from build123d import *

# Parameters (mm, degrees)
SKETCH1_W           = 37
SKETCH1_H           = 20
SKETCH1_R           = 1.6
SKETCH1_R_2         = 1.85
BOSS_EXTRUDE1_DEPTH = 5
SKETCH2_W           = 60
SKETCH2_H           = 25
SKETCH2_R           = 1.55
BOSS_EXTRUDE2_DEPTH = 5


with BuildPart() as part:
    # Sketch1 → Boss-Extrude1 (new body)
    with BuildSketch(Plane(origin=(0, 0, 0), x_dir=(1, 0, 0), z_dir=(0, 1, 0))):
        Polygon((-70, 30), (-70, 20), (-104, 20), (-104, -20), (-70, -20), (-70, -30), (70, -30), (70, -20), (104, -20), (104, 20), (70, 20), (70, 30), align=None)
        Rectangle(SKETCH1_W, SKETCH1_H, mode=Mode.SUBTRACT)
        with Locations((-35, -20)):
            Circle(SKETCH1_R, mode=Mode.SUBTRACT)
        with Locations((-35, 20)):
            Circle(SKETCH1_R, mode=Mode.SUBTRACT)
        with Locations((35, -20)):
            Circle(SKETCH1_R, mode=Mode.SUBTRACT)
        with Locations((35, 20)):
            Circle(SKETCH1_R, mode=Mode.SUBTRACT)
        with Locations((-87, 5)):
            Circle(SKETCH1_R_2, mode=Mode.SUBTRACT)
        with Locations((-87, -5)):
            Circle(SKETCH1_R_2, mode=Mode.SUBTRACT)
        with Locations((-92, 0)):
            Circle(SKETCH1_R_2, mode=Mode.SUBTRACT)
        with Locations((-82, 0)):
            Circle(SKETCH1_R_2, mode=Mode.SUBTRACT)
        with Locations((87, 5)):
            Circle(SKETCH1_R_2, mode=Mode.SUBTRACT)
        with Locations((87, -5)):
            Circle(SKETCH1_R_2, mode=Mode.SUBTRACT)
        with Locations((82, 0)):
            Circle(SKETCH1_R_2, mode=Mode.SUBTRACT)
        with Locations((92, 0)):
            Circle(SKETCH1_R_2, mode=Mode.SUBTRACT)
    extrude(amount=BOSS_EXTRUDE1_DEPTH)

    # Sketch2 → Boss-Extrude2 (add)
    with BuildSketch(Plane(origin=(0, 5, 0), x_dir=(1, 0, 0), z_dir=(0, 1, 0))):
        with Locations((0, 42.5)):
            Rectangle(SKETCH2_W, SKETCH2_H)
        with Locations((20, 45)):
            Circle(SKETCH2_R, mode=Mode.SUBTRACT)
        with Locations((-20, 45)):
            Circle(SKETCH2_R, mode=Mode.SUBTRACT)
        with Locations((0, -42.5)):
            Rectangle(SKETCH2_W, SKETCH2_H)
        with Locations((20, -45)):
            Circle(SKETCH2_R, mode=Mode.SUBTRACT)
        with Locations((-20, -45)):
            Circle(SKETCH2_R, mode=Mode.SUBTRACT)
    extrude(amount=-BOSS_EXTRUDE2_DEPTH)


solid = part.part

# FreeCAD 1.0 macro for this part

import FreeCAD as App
import Part
import Sketcher

V = App.Vector
Q = App.Units.Quantity

doc = App.newDocument("Part")
body = doc.addObject("PartDesign::Body", "Body")

# Sketch on XZ plane
sketch1 = body.newObject("Sketcher::SketchObject", "Sketch")
sketch1.AttachmentSupport = (doc.getObject("XZ_Plane"), [""])
sketch1.MapMode = "FlatFace"
sketch1.addGeometry(Part.LineSegment(V(-70, -30, 0), V(-70, -20, 0)), False)
sketch1.addGeometry(Part.LineSegment(V(-70, -20, 0), V(-104, -20, 0)), False)
sketch1.addGeometry(Part.LineSegment(V(-104, -20, 0), V(-104, 20, 0)), False)
sketch1.addGeometry(Part.LineSegment(V(-104, 20, 0), V(-70, 20, 0)), False)
sketch1.addGeometry(Part.LineSegment(V(-70, 20, 0), V(-70, 30, 0)), False)
sketch1.addGeometry(Part.LineSegment(V(-70, 30, 0), V(70, 30, 0)), False)
sketch1.addGeometry(Part.LineSegment(V(70, 30, 0), V(70, 20, 0)), False)
sketch1.addGeometry(Part.LineSegment(V(70, 20, 0), V(104, 20, 0)), False)
sketch1.addGeometry(Part.LineSegment(V(104, 20, 0), V(104, -20, 0)), False)
sketch1.addGeometry(Part.LineSegment(V(104, -20, 0), V(70, -20, 0)), False)
sketch1.addGeometry(Part.LineSegment(V(70, -20, 0), V(70, -30, 0)), False)
sketch1.addGeometry(Part.LineSegment(V(70, -30, 0), V(-70, -30, 0)), False)
sketch1.addGeometry(Part.Circle(V(-35, 20, 0), V(0, 0, 1), 1.6), False)
sketch1.addGeometry(Part.Circle(V(-87, 5, 0), V(0, 0, 1), 1.9), False)
sketch1.addGeometry(Part.Circle(V(35, 20, 0), V(0, 0, 1), 1.6), False)
sketch1.addGeometry(Part.Circle(V(87, 5, 0), V(0, 0, 1), 1.9), False)
sketch1.addGeometry(Part.Circle(V(-92, 0, 0), V(0, 0, 1), 1.9), False)
sketch1.addGeometry(Part.Circle(V(-82, 0, 0), V(0, 0, 1), 1.9), False)
sketch1.addGeometry(Part.Circle(V(-87, -5, 0), V(0, 0, 1), 1.9), False)
sketch1.addGeometry(Part.Circle(V(-35, -20, 0), V(0, 0, 1), 1.6), False)
sketch1.addGeometry(Part.LineSegment(V(18.5, 10, 0), V(-18.5, 10, 0)), False)
sketch1.addGeometry(Part.LineSegment(V(-18.5, 10, 0), V(-18.5, -10, 0)), False)
sketch1.addGeometry(Part.LineSegment(V(-18.5, -10, 0), V(18.5, -10, 0)), False)
sketch1.addGeometry(Part.LineSegment(V(18.5, -10, 0), V(18.5, 10, 0)), False)
sketch1.addGeometry(Part.Circle(V(82, 0, 0), V(0, 0, 1), 1.9), False)
sketch1.addGeometry(Part.Circle(V(92, 0, 0), V(0, 0, 1), 1.9), False)
sketch1.addGeometry(Part.Circle(V(87, -5, 0), V(0, 0, 1), 1.9), False)
sketch1.addGeometry(Part.Circle(V(35, -20, 0), V(0, 0, 1), 1.6), False)
sketch1.addConstraint(Sketcher.Constraint("Coincident", 0, 2, 1, 1))
sketch1.addConstraint(Sketcher.Constraint("Coincident", 1, 2, 2, 1))
sketch1.addConstraint(Sketcher.Constraint("Coincident", 2, 2, 3, 1))
sketch1.addConstraint(Sketcher.Constraint("Coincident", 3, 2, 4, 1))
sketch1.addConstraint(Sketcher.Constraint("Coincident", 4, 2, 5, 1))
sketch1.addConstraint(Sketcher.Constraint("Coincident", 5, 2, 6, 1))
sketch1.addConstraint(Sketcher.Constraint("Coincident", 6, 2, 7, 1))
sketch1.addConstraint(Sketcher.Constraint("Coincident", 7, 2, 8, 1))
sketch1.addConstraint(Sketcher.Constraint("Coincident", 8, 2, 9, 1))
sketch1.addConstraint(Sketcher.Constraint("Coincident", 9, 2, 10, 1))
sketch1.addConstraint(Sketcher.Constraint("Coincident", 10, 2, 11, 1))
sketch1.addConstraint(Sketcher.Constraint("Coincident", 11, 2, 0, 1))
sketch1.addConstraint(Sketcher.Constraint("Coincident", 20, 2, 21, 1))
sketch1.addConstraint(Sketcher.Constraint("Coincident", 21, 2, 22, 1))
sketch1.addConstraint(Sketcher.Constraint("Coincident", 22, 2, 23, 1))
sketch1.addConstraint(Sketcher.Constraint("Coincident", 23, 2, 20, 1))
sketch1.addConstraint(Sketcher.Constraint("Vertical", 0))
sketch1.addConstraint(Sketcher.Constraint("Horizontal", 1))
sketch1.addConstraint(Sketcher.Constraint("Vertical", 2))
sketch1.addConstraint(Sketcher.Constraint("Horizontal", 3))
sketch1.addConstraint(Sketcher.Constraint("Vertical", 4))
sketch1.addConstraint(Sketcher.Constraint("Horizontal", 5))
sketch1.addConstraint(Sketcher.Constraint("Vertical", 6))
sketch1.addConstraint(Sketcher.Constraint("Horizontal", 7))
sketch1.addConstraint(Sketcher.Constraint("Vertical", 8))
sketch1.addConstraint(Sketcher.Constraint("Horizontal", 9))
sketch1.addConstraint(Sketcher.Constraint("Vertical", 10))
sketch1.addConstraint(Sketcher.Constraint("Horizontal", 11))
sketch1.addConstraint(Sketcher.Constraint("Horizontal", 20))
sketch1.addConstraint(Sketcher.Constraint("Vertical", 21))
sketch1.addConstraint(Sketcher.Constraint("Horizontal", 22))
sketch1.addConstraint(Sketcher.Constraint("Vertical", 23))
sketch1.addConstraint(Sketcher.Constraint("Equal", 12, 14))
sketch1.addConstraint(Sketcher.Constraint("Equal", 13, 15))
sketch1.addConstraint(Sketcher.Constraint("Equal", 15, 16))
sketch1.addConstraint(Sketcher.Constraint("Equal", 16, 17))
sketch1.addConstraint(Sketcher.Constraint("Equal", 17, 18))
sketch1.addConstraint(Sketcher.Constraint("Equal", 14, 19))
sketch1.addConstraint(Sketcher.Constraint("Equal", 18, 24))
sketch1.addConstraint(Sketcher.Constraint("Equal", 24, 25))
sketch1.addConstraint(Sketcher.Constraint("Equal", 25, 26))
sketch1.addConstraint(Sketcher.Constraint("Equal", 19, 27))
sketch1.addConstraint(Sketcher.Constraint("Symmetric", 15, 3, 18, 3, -1, 1))
sketch1.addConstraint(Sketcher.Constraint("Symmetric", 14, 3, 19, 3, -1, 1))
sketch1.addConstraint(Sketcher.Constraint("Symmetric", 17, 3, 24, 3, -1, 1))
sketch1.addConstraint(Sketcher.Constraint("Symmetric", 16, 3, 25, 3, -1, 1))
sketch1.addConstraint(Sketcher.Constraint("Symmetric", 13, 3, 26, 3, -1, 1))
sketch1.addConstraint(Sketcher.Constraint("Symmetric", 12, 3, 27, 3, -1, 1))
sketch1.addConstraint(Sketcher.Constraint("Symmetric", 0, 2, 6, 2, -1, 1))
sketch1.addConstraint(Sketcher.Constraint("Symmetric", 2, 2, 8, 2, -1, 1))
sketch1.addConstraint(Sketcher.Constraint("Symmetric", 4, 2, 10, 2, -1, 1))
sketch1.addConstraint(Sketcher.Constraint("Symmetric", 20, 2, 22, 2, -1, 1))
sketch1.addConstraint(Sketcher.Constraint("Symmetric", 12, 3, 14, 3, -2))
sketch1.addConstraint(Sketcher.Constraint("Symmetric", 13, 3, 15, 3, -2))
sketch1.addConstraint(Sketcher.Constraint("Symmetric", 3, 2, 6, 2, -2))
sketch1.addConstraint(Sketcher.Constraint("PointOnObject", 16, 3, -1))
sketch1.addConstraint(Sketcher.Constraint("PointOnObject", 17, 3, -1))
sketch1.addConstraint(Sketcher.Constraint("Horizontal", 27, 3, 0, 2))
sketch1.addConstraint(Sketcher.Constraint("Diameter", 12, Q("3.2 mm")))
sketch1.addConstraint(Sketcher.Constraint("Diameter", 13, Q("3.7 mm")))
sketch1.addConstraint(Sketcher.Constraint("DistanceX", 1, 2, 1, 1, Q("34 mm")))
sketch1.addConstraint(Sketcher.Constraint("DistanceX", 5, 1, 5, 2, Q("140 mm")))
sketch1.addConstraint(Sketcher.Constraint("DistanceX", 20, 2, 20, 1, Q("37 mm")))
sketch1.addConstraint(Sketcher.Constraint("DistanceY", 0, 1, 0, 2, Q("10 mm")))
sketch1.addConstraint(Sketcher.Constraint("DistanceY", 2, 1, 2, 2, Q("40 mm")))
sketch1.addConstraint(Sketcher.Constraint("DistanceY", 21, 2, 21, 1, Q("20 mm")))
sketch1.addConstraint(Sketcher.Constraint("DistanceX", 12, 3, -1, 1, Q("35 mm")))
sketch1.addConstraint(Sketcher.Constraint("DistanceX", 13, 3, -1, 1, Q("87 mm")))
sketch1.addConstraint(Sketcher.Constraint("DistanceY", -1, 1, 13, 3, Q("5 mm")))
sketch1.addConstraint(Sketcher.Constraint("DistanceX", 16, 3, -1, 1, Q("92 mm")))
sketch1.addConstraint(Sketcher.Constraint("DistanceX", 17, 3, -1, 1, Q("82 mm")))
pad1 = body.newObject("PartDesign::Pad", "Pad")
pad1.Profile = sketch1
pad1.Length = 5
pad1.Reversed = True

# Sketch on XZ plane
sketch2 = body.newObject("Sketcher::SketchObject", "Sketch001")
sketch2.AttachmentSupport = (doc.getObject("XZ_Plane"), [""])
sketch2.MapMode = "FlatFace"
sketch2.AttachmentOffset = App.Placement(V(0, 0, -5), App.Rotation())
sketch2.addGeometry(Part.LineSegment(V(-30, -55, 0), V(-30, -30, 0)), False)
sketch2.addGeometry(Part.LineSegment(V(-30, -30, 0), V(30, -30, 0)), False)
sketch2.addGeometry(Part.LineSegment(V(30, -30, 0), V(30, -55, 0)), False)
sketch2.addGeometry(Part.LineSegment(V(30, -55, 0), V(-30, -55, 0)), False)
sketch2.addGeometry(Part.Circle(V(-20, -45, 0), V(0, 0, 1), 1.6), False)
sketch2.addGeometry(Part.Circle(V(20, -45, 0), V(0, 0, 1), 1.6), False)
sketch2.addGeometry(Part.LineSegment(V(-30, 30, 0), V(-30, 55, 0)), False)
sketch2.addGeometry(Part.LineSegment(V(-30, 55, 0), V(30, 55, 0)), False)
sketch2.addGeometry(Part.LineSegment(V(30, 55, 0), V(30, 30, 0)), False)
sketch2.addGeometry(Part.LineSegment(V(30, 30, 0), V(-30, 30, 0)), False)
sketch2.addGeometry(Part.Circle(V(-20, 45, 0), V(0, 0, 1), 1.6), False)
sketch2.addGeometry(Part.Circle(V(20, 45, 0), V(0, 0, 1), 1.6), False)
sketch2.addConstraint(Sketcher.Constraint("Coincident", 0, 2, 1, 1))
sketch2.addConstraint(Sketcher.Constraint("Coincident", 1, 2, 2, 1))
sketch2.addConstraint(Sketcher.Constraint("Coincident", 2, 2, 3, 1))
sketch2.addConstraint(Sketcher.Constraint("Coincident", 3, 2, 0, 1))
sketch2.addConstraint(Sketcher.Constraint("Coincident", 6, 2, 7, 1))
sketch2.addConstraint(Sketcher.Constraint("Coincident", 7, 2, 8, 1))
sketch2.addConstraint(Sketcher.Constraint("Coincident", 8, 2, 9, 1))
sketch2.addConstraint(Sketcher.Constraint("Coincident", 9, 2, 6, 1))
sketch2.addConstraint(Sketcher.Constraint("Vertical", 0))
sketch2.addConstraint(Sketcher.Constraint("Horizontal", 1))
sketch2.addConstraint(Sketcher.Constraint("Vertical", 2))
sketch2.addConstraint(Sketcher.Constraint("Horizontal", 3))
sketch2.addConstraint(Sketcher.Constraint("Vertical", 6))
sketch2.addConstraint(Sketcher.Constraint("Horizontal", 7))
sketch2.addConstraint(Sketcher.Constraint("Vertical", 8))
sketch2.addConstraint(Sketcher.Constraint("Horizontal", 9))
sketch2.addConstraint(Sketcher.Constraint("Equal", 4, 5))
sketch2.addConstraint(Sketcher.Constraint("Equal", 5, 10))
sketch2.addConstraint(Sketcher.Constraint("Equal", 10, 11))
sketch2.addConstraint(Sketcher.Constraint("Symmetric", 5, 3, 10, 3, -1, 1))
sketch2.addConstraint(Sketcher.Constraint("Symmetric", 4, 3, 11, 3, -1, 1))
sketch2.addConstraint(Sketcher.Constraint("Symmetric", 2, 2, 6, 2, -1, 1))
sketch2.addConstraint(Sketcher.Constraint("Symmetric", 0, 2, 8, 2, -1, 1))
sketch2.addConstraint(Sketcher.Constraint("Symmetric", 4, 3, 5, 3, -2))
sketch2.addConstraint(Sketcher.Constraint("Vertical", 3, 2, 6, 2))
sketch2.addConstraint(Sketcher.Constraint("Diameter", 4, Q("3.1 mm")))
sketch2.addConstraint(Sketcher.Constraint("DistanceX", 1, 1, 1, 2, Q("60 mm")))
sketch2.addConstraint(Sketcher.Constraint("DistanceY", 0, 1, 0, 2, Q("25 mm")))
sketch2.addConstraint(Sketcher.Constraint("DistanceX", 4, 3, -1, 1, Q("20 mm")))
sketch2.addConstraint(Sketcher.Constraint("DistanceY", 4, 3, -1, 1, Q("45 mm")))
sketch2.addConstraint(Sketcher.Constraint("DistanceY", 0, 2, -1, 1, Q("30 mm")))
pad2 = body.newObject("PartDesign::Pad", "Pad001")
pad2.Profile = sketch2
pad2.Length = 5

doc.recompute()
